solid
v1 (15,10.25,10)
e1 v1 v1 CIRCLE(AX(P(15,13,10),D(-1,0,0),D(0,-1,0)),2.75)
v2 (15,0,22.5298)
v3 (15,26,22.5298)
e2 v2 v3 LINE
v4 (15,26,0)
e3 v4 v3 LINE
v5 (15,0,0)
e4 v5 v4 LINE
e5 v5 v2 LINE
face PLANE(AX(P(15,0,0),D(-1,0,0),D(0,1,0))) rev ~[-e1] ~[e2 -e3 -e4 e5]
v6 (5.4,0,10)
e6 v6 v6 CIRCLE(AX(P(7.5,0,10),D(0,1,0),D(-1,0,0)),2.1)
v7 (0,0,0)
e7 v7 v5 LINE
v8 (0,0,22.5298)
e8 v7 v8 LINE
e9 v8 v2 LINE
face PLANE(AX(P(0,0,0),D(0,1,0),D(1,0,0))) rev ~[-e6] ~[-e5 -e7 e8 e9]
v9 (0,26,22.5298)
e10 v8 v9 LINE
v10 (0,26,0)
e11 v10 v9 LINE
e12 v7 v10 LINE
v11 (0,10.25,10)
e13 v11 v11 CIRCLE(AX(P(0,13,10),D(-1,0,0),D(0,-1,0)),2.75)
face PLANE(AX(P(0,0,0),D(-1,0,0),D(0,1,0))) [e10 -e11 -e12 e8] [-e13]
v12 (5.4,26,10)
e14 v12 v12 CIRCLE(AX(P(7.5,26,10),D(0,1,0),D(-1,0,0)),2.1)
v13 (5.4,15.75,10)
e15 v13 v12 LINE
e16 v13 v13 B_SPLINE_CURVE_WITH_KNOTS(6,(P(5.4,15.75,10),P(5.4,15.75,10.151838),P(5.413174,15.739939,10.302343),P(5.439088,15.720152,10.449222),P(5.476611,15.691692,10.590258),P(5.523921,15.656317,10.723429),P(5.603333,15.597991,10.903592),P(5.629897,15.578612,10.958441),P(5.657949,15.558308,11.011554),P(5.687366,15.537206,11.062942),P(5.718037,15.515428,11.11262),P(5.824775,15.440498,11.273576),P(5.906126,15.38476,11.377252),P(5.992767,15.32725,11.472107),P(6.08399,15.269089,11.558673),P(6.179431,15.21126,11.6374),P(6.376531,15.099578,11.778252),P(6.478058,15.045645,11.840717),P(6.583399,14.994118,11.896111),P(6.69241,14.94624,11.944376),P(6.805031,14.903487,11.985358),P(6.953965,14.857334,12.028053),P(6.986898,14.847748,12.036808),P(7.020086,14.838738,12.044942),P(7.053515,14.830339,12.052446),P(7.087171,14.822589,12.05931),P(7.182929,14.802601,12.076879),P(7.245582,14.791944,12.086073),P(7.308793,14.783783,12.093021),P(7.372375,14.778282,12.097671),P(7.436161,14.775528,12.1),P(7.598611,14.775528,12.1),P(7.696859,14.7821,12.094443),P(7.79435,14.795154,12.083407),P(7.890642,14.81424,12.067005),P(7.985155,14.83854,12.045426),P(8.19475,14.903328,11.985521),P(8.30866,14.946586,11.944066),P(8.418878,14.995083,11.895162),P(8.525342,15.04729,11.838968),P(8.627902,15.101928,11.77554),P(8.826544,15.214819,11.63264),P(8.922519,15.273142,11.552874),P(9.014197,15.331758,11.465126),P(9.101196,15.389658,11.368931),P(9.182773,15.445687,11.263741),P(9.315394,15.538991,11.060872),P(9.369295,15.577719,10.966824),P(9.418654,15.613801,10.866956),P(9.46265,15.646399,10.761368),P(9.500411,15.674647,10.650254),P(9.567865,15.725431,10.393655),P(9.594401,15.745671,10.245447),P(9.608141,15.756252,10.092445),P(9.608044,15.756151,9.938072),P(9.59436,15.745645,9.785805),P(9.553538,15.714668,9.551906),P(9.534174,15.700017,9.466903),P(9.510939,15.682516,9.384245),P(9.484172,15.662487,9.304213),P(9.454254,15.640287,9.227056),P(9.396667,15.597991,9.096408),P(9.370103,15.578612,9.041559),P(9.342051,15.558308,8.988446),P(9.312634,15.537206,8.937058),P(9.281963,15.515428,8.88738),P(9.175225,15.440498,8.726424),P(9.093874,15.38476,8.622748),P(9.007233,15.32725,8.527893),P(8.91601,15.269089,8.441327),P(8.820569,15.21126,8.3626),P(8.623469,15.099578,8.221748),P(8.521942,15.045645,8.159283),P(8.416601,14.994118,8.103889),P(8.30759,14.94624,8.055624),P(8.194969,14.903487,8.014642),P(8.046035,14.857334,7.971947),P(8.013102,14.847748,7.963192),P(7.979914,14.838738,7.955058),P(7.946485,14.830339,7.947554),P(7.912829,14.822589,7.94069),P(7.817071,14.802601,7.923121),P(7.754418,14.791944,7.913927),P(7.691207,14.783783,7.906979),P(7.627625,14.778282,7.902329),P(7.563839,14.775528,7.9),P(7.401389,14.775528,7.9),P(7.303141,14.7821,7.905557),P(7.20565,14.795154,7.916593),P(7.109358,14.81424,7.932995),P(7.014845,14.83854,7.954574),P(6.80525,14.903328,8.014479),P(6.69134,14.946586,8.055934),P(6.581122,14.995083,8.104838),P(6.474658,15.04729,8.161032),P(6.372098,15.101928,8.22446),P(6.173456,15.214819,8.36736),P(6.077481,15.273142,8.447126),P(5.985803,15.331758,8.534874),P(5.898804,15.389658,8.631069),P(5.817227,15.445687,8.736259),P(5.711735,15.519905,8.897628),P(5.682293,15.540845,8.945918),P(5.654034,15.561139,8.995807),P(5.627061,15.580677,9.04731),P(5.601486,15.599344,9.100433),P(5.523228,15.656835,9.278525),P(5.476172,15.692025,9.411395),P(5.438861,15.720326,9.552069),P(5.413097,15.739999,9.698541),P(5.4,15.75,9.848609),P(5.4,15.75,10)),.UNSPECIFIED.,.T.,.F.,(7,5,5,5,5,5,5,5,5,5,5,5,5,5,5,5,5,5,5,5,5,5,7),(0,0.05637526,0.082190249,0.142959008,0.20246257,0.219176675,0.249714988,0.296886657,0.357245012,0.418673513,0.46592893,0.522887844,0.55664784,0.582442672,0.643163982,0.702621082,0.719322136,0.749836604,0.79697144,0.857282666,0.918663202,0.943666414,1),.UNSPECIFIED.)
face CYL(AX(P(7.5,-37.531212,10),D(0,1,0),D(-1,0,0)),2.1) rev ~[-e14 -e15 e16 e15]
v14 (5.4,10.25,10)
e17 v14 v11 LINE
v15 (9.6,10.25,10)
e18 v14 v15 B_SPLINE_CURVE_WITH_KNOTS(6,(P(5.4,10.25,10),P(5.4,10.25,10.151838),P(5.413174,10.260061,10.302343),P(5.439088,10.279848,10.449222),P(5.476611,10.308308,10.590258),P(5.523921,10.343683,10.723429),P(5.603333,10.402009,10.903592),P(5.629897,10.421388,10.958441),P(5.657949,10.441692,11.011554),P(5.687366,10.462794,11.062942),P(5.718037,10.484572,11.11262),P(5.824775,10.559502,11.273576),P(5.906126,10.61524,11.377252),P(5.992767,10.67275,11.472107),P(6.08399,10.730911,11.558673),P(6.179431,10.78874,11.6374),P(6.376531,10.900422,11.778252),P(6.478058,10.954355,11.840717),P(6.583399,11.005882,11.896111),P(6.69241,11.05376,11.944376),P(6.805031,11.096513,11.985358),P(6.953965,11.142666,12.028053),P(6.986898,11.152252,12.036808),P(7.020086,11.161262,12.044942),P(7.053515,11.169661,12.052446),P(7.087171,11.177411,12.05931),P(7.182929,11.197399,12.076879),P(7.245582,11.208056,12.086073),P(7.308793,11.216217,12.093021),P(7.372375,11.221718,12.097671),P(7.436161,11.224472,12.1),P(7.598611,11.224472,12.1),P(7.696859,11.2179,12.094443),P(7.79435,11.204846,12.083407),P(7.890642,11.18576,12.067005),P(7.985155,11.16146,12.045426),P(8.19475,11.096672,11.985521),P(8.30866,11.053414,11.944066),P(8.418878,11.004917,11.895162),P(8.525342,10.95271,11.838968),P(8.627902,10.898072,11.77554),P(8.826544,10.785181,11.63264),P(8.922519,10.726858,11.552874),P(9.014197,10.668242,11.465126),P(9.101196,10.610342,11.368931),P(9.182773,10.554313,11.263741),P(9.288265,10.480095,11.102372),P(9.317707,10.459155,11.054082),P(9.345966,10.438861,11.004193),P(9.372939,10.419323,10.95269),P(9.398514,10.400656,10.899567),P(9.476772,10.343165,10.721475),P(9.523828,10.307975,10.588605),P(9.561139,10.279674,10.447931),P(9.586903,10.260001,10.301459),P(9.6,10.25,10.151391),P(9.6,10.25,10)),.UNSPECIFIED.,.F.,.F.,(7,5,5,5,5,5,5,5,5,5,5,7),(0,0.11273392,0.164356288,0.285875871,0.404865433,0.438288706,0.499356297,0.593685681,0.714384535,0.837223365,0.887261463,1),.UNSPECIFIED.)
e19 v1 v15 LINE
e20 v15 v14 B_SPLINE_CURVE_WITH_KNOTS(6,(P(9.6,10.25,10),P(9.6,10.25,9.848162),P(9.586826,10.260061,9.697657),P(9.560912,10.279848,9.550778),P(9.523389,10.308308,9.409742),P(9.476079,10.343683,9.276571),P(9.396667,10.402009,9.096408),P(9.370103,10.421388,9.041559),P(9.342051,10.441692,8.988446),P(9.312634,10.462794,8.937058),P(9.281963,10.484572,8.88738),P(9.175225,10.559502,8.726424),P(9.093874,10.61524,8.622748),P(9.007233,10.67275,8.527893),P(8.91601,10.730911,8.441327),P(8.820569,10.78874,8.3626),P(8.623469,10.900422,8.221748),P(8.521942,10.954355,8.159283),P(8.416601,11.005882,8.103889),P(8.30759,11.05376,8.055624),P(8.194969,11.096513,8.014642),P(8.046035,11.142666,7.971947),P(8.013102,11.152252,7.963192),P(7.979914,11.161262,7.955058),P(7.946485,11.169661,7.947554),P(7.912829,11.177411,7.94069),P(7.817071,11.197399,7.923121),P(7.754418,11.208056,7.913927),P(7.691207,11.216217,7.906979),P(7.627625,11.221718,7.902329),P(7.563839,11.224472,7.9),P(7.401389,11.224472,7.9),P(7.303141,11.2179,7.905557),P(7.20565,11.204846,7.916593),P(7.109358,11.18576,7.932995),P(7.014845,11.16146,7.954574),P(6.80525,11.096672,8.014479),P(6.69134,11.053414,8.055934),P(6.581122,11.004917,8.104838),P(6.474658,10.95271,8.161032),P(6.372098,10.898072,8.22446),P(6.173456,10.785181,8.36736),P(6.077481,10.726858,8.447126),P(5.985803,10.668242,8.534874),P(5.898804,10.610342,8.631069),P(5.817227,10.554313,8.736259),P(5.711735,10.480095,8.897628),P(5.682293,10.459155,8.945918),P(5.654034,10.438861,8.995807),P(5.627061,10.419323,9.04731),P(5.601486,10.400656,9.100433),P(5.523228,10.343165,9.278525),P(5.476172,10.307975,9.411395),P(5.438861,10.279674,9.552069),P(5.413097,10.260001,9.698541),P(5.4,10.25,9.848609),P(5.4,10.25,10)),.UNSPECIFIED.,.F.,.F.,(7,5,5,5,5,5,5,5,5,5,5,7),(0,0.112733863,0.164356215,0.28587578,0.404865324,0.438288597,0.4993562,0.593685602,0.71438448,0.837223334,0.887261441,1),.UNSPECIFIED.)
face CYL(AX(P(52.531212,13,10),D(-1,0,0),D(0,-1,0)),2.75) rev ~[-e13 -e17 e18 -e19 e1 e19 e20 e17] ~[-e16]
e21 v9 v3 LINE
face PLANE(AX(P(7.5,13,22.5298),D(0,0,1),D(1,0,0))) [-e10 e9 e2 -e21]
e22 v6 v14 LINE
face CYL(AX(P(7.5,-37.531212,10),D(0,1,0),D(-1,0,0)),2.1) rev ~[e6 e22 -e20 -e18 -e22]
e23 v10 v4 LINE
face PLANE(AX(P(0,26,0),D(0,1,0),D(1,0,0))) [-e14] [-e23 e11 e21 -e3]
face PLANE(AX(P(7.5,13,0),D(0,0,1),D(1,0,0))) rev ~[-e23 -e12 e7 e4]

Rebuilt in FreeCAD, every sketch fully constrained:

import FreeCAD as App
import Part
import Sketcher
from FreeCAD import Vector
Q = App.Units.Quantity

doc = App.newDocument("Part")
params = doc.addObject("Spreadsheet::Sheet", "Params")
for row, (alias, value) in enumerate([
    ("sketch1_width", "15 mm"),
    ("sketch1_height", "26 mm"),
    ("pad1_length", "22.5298 mm"),
    ("sketch2_diameter", "4.2 mm"),
    ("hole_diameter", "4.2 mm"),
    ("sketch3_diameter", "5.5 mm"),
    ("hole2_diameter", "5.5 mm"),
], start=1):
    params.set(f"A{row}", alias)
    params.set(f"B{row}", "=" + value)
    params.setAlias(f"B{row}", alias)

body = doc.addObject("PartDesign::Body", "Body")

# Sketch on XY plane
sketch1 = body.newObject("Sketcher::SketchObject", "Sketch")
sketch1.AttachmentSupport = (doc.getObject("XY_Plane"), [""])
sketch1.MapMode = "FlatFace"
sketch1.addGeometry(Part.LineSegment(Vector(0, 26, 0), Vector(0, 0, 0)), False)
sketch1.addGeometry(Part.LineSegment(Vector(0, 0, 0), Vector(15, 0, 0)), False)
sketch1.addGeometry(Part.LineSegment(Vector(15, 0, 0), Vector(15, 26, 0)), False)
sketch1.addGeometry(Part.LineSegment(Vector(15, 26, 0), Vector(0, 26, 0)), False)
sketch1.addConstraint(Sketcher.Constraint("Coincident", 0, 2, 1, 1))
sketch1.addConstraint(Sketcher.Constraint("Coincident", 1, 2, 2, 1))
sketch1.addConstraint(Sketcher.Constraint("Coincident", 2, 2, 3, 1))
sketch1.addConstraint(Sketcher.Constraint("Coincident", 3, 2, 0, 1))
sketch1.addConstraint(Sketcher.Constraint("Vertical", 0))
sketch1.addConstraint(Sketcher.Constraint("Horizontal", 1))
sketch1.addConstraint(Sketcher.Constraint("Vertical", 2))
sketch1.addConstraint(Sketcher.Constraint("Horizontal", 3))
sketch1.addConstraint(Sketcher.Constraint("Coincident", 0, 2, -1, 1))
sketch1.addConstraint(Sketcher.Constraint("DistanceX", 1, 1, 1, 2, Q("15 mm")))
sketch1.addConstraint(Sketcher.Constraint("DistanceY", 0, 2, 0, 1, Q("26 mm")))
sketch1.setExpression("Constraints[9]", "Params.sketch1_width")
sketch1.setExpression("Constraints[10]", "Params.sketch1_height")
pad1 = body.newObject("PartDesign::Pad", "Pad")
pad1.Profile = sketch1
pad1.setExpression("Length", "Params.pad1_length")

# Sketch on XZ plane
sketch2 = body.newObject("Sketcher::SketchObject", "Sketch001")
sketch2.AttachmentSupport = (doc.getObject("XZ_Plane"), [""])
sketch2.MapMode = "FlatFace"
sketch2.addGeometry(Part.Circle(Vector(7.5, 10, 0), Vector(0, 0, 1), 2.1), False)
sketch2.addConstraint(Sketcher.Constraint("Diameter", 0, Q("4.2 mm")))
sketch2.addConstraint(Sketcher.Constraint("DistanceY", -1, 1, 0, 3, Q("10 mm")))
sketch2.addConstraint(Sketcher.Constraint("DistanceX", -1, 1, 0, 3, Q("7.5 mm")))
sketch2.setExpression("Constraints[0]", "Params.sketch2_diameter")
doc.recompute()
hole = body.newObject("PartDesign::Hole", "Hole")
hole.Profile = sketch2
hole.ThreadType = "None"
hole.setExpression("Diameter", "Params.hole_diameter")
hole.DepthType = "ThroughAll"

# Sketch on YZ plane
sketch3 = body.newObject("Sketcher::SketchObject", "Sketch002")
sketch3.AttachmentSupport = (doc.getObject("YZ_Plane"), [""])
sketch3.MapMode = "FlatFace"
sketch3.AttachmentOffset = App.Placement(Vector(0, 0, 15), App.Rotation())
sketch3.addGeometry(Part.Circle(Vector(13, 10, 0), Vector(0, 0, 1), 2.8), False)
sketch3.addConstraint(Sketcher.Constraint("Diameter", 0, Q("5.5 mm")))
sketch3.addConstraint(Sketcher.Constraint("DistanceX", -1, 1, 0, 3, Q("13 mm")))
sketch3.addConstraint(Sketcher.Constraint("DistanceY", -1, 1, 0, 3, Q("10 mm")))
sketch3.setExpression("Constraints[0]", "Params.sketch3_diameter")
doc.recompute()
hole2 = body.newObject("PartDesign::Hole", "Hole001")
hole2.Profile = sketch3
hole2.ThreadType = "None"
hole2.setExpression("Diameter", "Params.hole2_diameter")
hole2.DepthType = "ThroughAll"

doc.recompute()
